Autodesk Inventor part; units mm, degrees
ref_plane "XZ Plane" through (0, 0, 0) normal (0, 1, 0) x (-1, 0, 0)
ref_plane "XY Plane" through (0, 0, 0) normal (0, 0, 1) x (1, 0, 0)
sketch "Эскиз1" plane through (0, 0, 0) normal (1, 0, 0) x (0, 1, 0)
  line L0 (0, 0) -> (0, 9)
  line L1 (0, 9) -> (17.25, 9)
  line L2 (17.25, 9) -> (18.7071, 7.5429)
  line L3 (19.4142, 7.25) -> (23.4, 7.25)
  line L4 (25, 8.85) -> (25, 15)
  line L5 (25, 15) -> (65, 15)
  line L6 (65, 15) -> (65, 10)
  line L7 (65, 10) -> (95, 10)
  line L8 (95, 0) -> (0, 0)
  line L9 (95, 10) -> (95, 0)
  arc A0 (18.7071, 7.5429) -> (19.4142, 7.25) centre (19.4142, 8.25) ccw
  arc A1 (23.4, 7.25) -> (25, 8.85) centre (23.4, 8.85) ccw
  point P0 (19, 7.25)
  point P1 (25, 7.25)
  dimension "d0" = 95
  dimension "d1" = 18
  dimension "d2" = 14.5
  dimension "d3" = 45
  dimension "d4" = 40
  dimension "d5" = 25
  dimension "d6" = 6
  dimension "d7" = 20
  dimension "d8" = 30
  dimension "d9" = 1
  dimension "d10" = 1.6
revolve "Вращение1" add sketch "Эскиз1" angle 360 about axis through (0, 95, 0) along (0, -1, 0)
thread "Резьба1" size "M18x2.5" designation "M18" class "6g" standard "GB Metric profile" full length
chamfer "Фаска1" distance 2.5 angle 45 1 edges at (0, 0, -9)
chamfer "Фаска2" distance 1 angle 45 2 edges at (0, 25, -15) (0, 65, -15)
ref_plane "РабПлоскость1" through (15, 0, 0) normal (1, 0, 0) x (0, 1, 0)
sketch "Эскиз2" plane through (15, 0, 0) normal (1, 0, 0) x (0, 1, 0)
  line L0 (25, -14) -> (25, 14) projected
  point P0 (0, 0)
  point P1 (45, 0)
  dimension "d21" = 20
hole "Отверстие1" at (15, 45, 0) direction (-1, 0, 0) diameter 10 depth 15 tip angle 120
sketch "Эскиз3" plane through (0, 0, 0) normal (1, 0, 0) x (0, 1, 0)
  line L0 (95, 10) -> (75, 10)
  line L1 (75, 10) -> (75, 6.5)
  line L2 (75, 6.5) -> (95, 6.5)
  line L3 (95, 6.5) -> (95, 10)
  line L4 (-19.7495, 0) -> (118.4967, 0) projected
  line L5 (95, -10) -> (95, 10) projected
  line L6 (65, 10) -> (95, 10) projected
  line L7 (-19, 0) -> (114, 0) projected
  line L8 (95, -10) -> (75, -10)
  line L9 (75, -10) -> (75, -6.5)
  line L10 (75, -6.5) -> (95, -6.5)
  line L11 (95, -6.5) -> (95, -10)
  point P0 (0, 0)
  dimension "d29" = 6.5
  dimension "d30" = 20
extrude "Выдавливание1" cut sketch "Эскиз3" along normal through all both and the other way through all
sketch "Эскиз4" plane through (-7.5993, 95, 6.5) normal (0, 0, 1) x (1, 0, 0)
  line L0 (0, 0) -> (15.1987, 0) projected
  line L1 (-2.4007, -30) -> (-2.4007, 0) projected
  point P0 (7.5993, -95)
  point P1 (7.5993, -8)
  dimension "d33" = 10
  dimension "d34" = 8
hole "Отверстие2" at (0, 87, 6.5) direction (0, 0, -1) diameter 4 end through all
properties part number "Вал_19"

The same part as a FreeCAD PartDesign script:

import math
import FreeCAD as App
import Part
import Sketcher
from FreeCAD import Vector
Q = App.Units.Quantity


def edges_at(feature, points):
    """Names of the edges that pass closest to the given points."""
    edges = feature.Shape.Edges
    near = lambda p: min(range(len(edges)), key=lambda i: edges[i].distToShape(Part.Vertex(*p))[0])
    return sorted({f"Edge{near(p) + 1}" for p in points})


def add_polygon(sketch, points):
    """Adds a closed chain of lines whose ends are joined by coincident constraints."""
    first, n = sketch.GeometryCount, len(points)
    for a, b in zip(points, points[1:] + points[:1]):
        sketch.addGeometry(Part.LineSegment(App.Vector(*a, 0), App.Vector(*b, 0)), False)
    for i in range(n):
        sketch.addConstraint(Sketcher.Constraint("Coincident", first + i, 2, first + (i + 1) % n, 1))

doc = App.newDocument("Part")
body = doc.addObject("PartDesign::Body", "Body")

# Sketch on YZ plane
sketch1 = body.newObject("Sketcher::SketchObject", "Sketch")
sketch1.AttachmentSupport = (doc.getObject("YZ_Plane"), [""])
sketch1.MapMode = "FlatFace"
sketch1.addGeometry(Part.LineSegment(Vector(0, 9, 0), Vector(0, 0, 0)), False)
sketch1.addGeometry(Part.LineSegment(Vector(0, 0, 0), Vector(95, 0, 0)), False)
sketch1.addGeometry(Part.LineSegment(Vector(95, 0, 0), Vector(95, 10, 0)), False)
sketch1.addGeometry(Part.LineSegment(Vector(95, 10, 0), Vector(65, 10, 0)), False)
sketch1.addGeometry(Part.LineSegment(Vector(65, 10, 0), Vector(65, 15, 0)), False)
sketch1.addGeometry(Part.LineSegment(Vector(65, 15, 0), Vector(25, 15, 0)), False)
sketch1.addGeometry(Part.LineSegment(Vector(25, 15, 0), Vector(25, 8.8, 0)), False)
sketch1.addGeometry(Part.ArcOfCircle(Part.Circle(Vector(23.4, 8.8, 0), Vector(0, 0, 1), 1.6), math.radians(-90), math.radians(0)), False)
sketch1.addGeometry(Part.LineSegment(Vector(23.4, 7.2, 0), Vector(19.4, 7.2, 0)), False)
sketch1.addGeometry(Part.ArcOfCircle(Part.Circle(Vector(19.4, 8.2, 0), Vector(0, 0, 1), 1), math.radians(-135), math.radians(-90)), False)
sketch1.addGeometry(Part.LineSegment(Vector(18.7, 7.5, 0), Vector(17.2, 9, 0)), False)
sketch1.addGeometry(Part.LineSegment(Vector(17.2, 9, 0), Vector(0, 9, 0)), False)
sketch1.addConstraint(Sketcher.Constraint("Coincident", 0, 2, 1, 1))
sketch1.addConstraint(Sketcher.Constraint("Coincident", 1, 2, 2, 1))
sketch1.addConstraint(Sketcher.Constraint("Coincident", 2, 2, 3, 1))
sketch1.addConstraint(Sketcher.Constraint("Coincident", 3, 2, 4, 1))
sketch1.addConstraint(Sketcher.Constraint("Coincident", 4, 2, 5, 1))
sketch1.addConstraint(Sketcher.Constraint("Coincident", 5, 2, 6, 1))
sketch1.addConstraint(Sketcher.Constraint("Tangent", 6, 2, 7, 2))
sketch1.addConstraint(Sketcher.Constraint("Tangent", 7, 1, 8, 1))
sketch1.addConstraint(Sketcher.Constraint("Tangent", 8, 2, 9, 2))
sketch1.addConstraint(Sketcher.Constraint("Tangent", 9, 1, 10, 1))
sketch1.addConstraint(Sketcher.Constraint("Coincident", 10, 2, 11, 1))
sketch1.addConstraint(Sketcher.Constraint("Coincident", 11, 2, 0, 1))
sketch1.addConstraint(Sketcher.Constraint("Vertical", 0))
sketch1.addConstraint(Sketcher.Constraint("Horizontal", 1))
sketch1.addConstraint(Sketcher.Constraint("Vertical", 2))
sketch1.addConstraint(Sketcher.Constraint("Horizontal", 3))
sketch1.addConstraint(Sketcher.Constraint("Vertical", 4))
sketch1.addConstraint(Sketcher.Constraint("Horizontal", 5))
sketch1.addConstraint(Sketcher.Constraint("Vertical", 6))
sketch1.addConstraint(Sketcher.Constraint("Horizontal", 8))
sketch1.addConstraint(Sketcher.Constraint("Horizontal", 11))
sketch1.addConstraint(Sketcher.Constraint("Coincident", 0, 2, -1, 1))
sketch1.addConstraint(Sketcher.Constraint("Radius", 9, Q("1 mm")))
sketch1.addConstraint(Sketcher.Constraint("Radius", 7, Q("1.6 mm")))
sketch1.addConstraint(Sketcher.Constraint("DistanceX", 1, 1, 1, 2, Q("95 mm")))
sketch1.addConstraint(Sketcher.Constraint("DistanceX", 3, 2, 3, 1, Q("30 mm")))
sketch1.addConstraint(Sketcher.Constraint("DistanceX", 5, 2, 5, 1, Q("40 mm")))
sketch1.addConstraint(Sketcher.Constraint("DistanceY", 0, 2, 0, 1, Q("9 mm")))
sketch1.addConstraint(Sketcher.Constraint("DistanceY", 2, 1, 2, 2, Q("10 mm")))
sketch1.addConstraint(Sketcher.Constraint("DistanceY", 4, 1, 4, 2, Q("5 mm")))
sketch1.addConstraint(Sketcher.Constraint("Angle", 10, Q("135 deg")))
sketch1.addConstraint(Sketcher.Constraint("DistanceX", 11, 2, 11, 1, Q("17.25 mm")))
sketch1.addConstraint(Sketcher.Constraint("DistanceY", 6, 2, 6, 1, Q("6.15 mm")))
revolution = body.newObject("PartDesign::Revolution", "Revolution")
revolution.Profile = sketch1
revolution.ReferenceAxis = (sketch1, ["H_Axis"])
revolution.Angle = 360
doc.recompute()

chamfer = body.newObject("PartDesign::Chamfer", "Chamfer")
chamfer.Base = (revolution, edges_at(revolution, [(0, 0, -9)]))
chamfer.Size = 2.5
doc.recompute()

chamfer2 = body.newObject("PartDesign::Chamfer", "Chamfer001")
chamfer2.Base = (chamfer, edges_at(chamfer, [(0, 25, -15), (0, 65, -15)]))
chamfer2.Size = 1

# Sketch on YZ plane
sketch2 = body.newObject("Sketcher::SketchObject", "Sketch001")
sketch2.AttachmentSupport = (doc.getObject("YZ_Plane"), [""])
sketch2.MapMode = "FlatFace"
sketch2.AttachmentOffset = App.Placement(Vector(0, 0, 15), App.Rotation())
sketch2.addGeometry(Part.Circle(Vector(45, 0, 0), Vector(0, 0, 1), 5), False)
sketch2.addConstraint(Sketcher.Constraint("PointOnObject", 0, 3, -1))
sketch2.addConstraint(Sketcher.Constraint("Diameter", 0, Q("10 mm")))
sketch2.addConstraint(Sketcher.Constraint("DistanceX", -1, 1, 0, 3, Q("45 mm")))
doc.recompute()
hole = body.newObject("PartDesign::Hole", "Hole")
hole.Profile = sketch2
hole.ThreadType = "None"
hole.Diameter = 10
hole.DepthType = "Dimension"
hole.Depth = 15
hole.DrillPoint = "Angled"
hole.DrillPointAngle = 120

# Sketch on YZ plane
sketch3 = body.newObject("Sketcher::SketchObject", "Sketch002")
sketch3.AttachmentSupport = (doc.getObject("YZ_Plane"), [""])
sketch3.MapMode = "FlatFace"
add_polygon(sketch3, [(95, 6.5), (95, 10), (75, 10), (75, 6.5)])  # lines 0-3
add_polygon(sketch3, [(95, -10), (95, -6.5), (75, -6.5), (75, -10)])  # lines 4-7
sketch3.addConstraint(Sketcher.Constraint("Vertical", 0))
sketch3.addConstraint(Sketcher.Constraint("Horizontal", 1))
sketch3.addConstraint(Sketcher.Constraint("Vertical", 2))
sketch3.addConstraint(Sketcher.Constraint("Horizontal", 3))
sketch3.addConstraint(Sketcher.Constraint("Vertical", 4))
sketch3.addConstraint(Sketcher.Constraint("Horizontal", 5))
sketch3.addConstraint(Sketcher.Constraint("Vertical", 6))
sketch3.addConstraint(Sketcher.Constraint("Horizontal", 7))
sketch3.addConstraint(Sketcher.Constraint("Symmetric", 3, 2, 4, 2, -1))
sketch3.addConstraint(Sketcher.Constraint("Symmetric", 1, 2, 6, 2, -1))
sketch3.addConstraint(Sketcher.Constraint("DistanceX", 1, 2, 1, 1, Q("20 mm")))
sketch3.addConstraint(Sketcher.Constraint("DistanceY", 6, 2, 1, 2, Q("20 mm")))
sketch3.addConstraint(Sketcher.Constraint("DistanceY", -1, 1, 2, 2, Q("6.5 mm")))
sketch3.addConstraint(Sketcher.Constraint("DistanceX", -1, 1, 0, 2, Q("95 mm")))
pocket1 = body.newObject("PartDesign::Pocket", "Pocket")
pocket1.Profile = sketch3
pocket1.Type = "ThroughAll"
pocket1.Midplane = True

# Sketch on XY plane
sketch4 = body.newObject("Sketcher::SketchObject", "Sketch003")
sketch4.AttachmentSupport = (doc.getObject("XY_Plane"), [""])
sketch4.MapMode = "FlatFace"
sketch4.AttachmentOffset = App.Placement(Vector(0, 0, 6.5), App.Rotation())
sketch4.addGeometry(Part.Circle(Vector(0, 87, 0), Vector(0, 0, 1), 2), False)
sketch4.addConstraint(Sketcher.Constraint("PointOnObject", 0, 3, -2))
sketch4.addConstraint(Sketcher.Constraint("Diameter", 0, Q("4 mm")))
sketch4.addConstraint(Sketcher.Constraint("DistanceY", -1, 1, 0, 3, Q("87 mm")))
doc.recompute()
hole2 = body.newObject("PartDesign::Hole", "Hole001")
hole2.Profile = sketch4
hole2.ThreadType = "None"
hole2.Diameter = 4
hole2.DepthType = "ThroughAll"

doc.recompute()
